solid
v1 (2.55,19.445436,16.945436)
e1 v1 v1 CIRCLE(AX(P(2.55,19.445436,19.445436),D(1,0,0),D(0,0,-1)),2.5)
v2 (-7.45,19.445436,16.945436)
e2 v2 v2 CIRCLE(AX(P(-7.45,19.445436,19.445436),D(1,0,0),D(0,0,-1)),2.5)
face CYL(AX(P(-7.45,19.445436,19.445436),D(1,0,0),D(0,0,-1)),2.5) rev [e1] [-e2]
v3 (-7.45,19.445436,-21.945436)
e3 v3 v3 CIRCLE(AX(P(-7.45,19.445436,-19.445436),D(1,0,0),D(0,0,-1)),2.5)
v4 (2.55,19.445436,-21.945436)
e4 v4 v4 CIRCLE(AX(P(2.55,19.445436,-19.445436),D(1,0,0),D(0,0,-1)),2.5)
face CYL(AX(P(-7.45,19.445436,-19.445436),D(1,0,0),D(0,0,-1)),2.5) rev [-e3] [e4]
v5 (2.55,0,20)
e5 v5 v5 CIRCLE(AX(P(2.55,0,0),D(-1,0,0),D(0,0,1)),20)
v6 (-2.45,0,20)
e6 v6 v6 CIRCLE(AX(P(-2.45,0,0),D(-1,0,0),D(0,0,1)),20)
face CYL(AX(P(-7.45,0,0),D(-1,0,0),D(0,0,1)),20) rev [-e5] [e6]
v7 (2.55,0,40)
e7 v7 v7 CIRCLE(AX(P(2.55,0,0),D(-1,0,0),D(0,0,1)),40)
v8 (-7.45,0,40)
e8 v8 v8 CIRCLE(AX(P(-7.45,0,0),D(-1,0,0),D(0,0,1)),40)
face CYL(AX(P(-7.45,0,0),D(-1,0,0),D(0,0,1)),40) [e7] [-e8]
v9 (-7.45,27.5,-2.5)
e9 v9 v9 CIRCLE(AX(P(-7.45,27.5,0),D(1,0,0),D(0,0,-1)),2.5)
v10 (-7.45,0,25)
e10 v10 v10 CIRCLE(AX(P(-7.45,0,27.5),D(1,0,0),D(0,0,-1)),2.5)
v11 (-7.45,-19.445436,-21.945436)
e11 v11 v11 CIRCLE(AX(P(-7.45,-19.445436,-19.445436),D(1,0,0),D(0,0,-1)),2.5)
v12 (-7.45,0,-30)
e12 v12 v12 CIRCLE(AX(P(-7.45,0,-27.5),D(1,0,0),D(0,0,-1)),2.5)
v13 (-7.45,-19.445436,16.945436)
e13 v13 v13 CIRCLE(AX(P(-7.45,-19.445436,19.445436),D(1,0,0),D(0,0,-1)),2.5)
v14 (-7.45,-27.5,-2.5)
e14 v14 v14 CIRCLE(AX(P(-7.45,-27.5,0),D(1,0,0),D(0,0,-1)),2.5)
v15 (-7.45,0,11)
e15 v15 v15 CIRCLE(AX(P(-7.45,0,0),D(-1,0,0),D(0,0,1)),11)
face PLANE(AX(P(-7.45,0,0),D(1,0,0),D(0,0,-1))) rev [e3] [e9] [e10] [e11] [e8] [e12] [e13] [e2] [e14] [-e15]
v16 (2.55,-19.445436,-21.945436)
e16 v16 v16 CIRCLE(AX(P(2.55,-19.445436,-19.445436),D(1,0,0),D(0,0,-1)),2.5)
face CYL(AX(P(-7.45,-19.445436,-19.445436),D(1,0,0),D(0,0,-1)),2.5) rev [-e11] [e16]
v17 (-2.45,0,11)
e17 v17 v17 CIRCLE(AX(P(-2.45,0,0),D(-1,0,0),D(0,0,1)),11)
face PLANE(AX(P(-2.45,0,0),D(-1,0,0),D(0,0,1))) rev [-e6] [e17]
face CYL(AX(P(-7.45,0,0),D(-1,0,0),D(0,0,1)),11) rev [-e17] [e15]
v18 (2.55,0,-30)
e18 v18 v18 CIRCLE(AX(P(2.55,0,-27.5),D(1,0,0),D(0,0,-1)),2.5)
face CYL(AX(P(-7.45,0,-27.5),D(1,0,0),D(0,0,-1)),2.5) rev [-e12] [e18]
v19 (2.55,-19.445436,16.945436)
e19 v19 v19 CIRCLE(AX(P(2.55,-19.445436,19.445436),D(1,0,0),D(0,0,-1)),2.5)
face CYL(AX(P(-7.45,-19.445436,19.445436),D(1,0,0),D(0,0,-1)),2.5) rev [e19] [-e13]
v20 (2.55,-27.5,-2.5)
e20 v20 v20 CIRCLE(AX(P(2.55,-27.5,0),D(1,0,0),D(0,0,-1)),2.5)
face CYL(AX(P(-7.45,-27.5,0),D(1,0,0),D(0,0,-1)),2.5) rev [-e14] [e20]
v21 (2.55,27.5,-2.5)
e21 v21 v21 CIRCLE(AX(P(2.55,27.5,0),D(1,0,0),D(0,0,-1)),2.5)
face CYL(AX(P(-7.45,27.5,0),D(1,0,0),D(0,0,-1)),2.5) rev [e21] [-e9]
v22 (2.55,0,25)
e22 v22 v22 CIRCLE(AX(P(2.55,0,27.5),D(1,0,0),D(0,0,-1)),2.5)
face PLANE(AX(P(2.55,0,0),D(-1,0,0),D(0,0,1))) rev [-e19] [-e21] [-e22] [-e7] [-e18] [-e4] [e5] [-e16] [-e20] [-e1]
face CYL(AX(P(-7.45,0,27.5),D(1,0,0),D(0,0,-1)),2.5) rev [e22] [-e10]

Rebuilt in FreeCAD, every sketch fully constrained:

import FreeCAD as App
import Part
import Sketcher

V = App.Vector

doc = App.newDocument("Part")
body = doc.addObject("PartDesign::Body", "Body")

# Sketch on XY plane
sketch1 = body.newObject("Sketcher::SketchObject", "Sketch")
sketch1.AttachmentSupport = (doc.getObject("XY_Plane"), [""])
sketch1.MapMode = "FlatFace"
sketch1.addGeometry(Part.LineSegment(V(3, 20, 0), V(3, 40, 0)), False)
sketch1.addGeometry(Part.LineSegment(V(3, 40, 0), V(-7, 40, 0)), False)
sketch1.addGeometry(Part.LineSegment(V(-7, 40, 0), V(-7, 11, 0)), False)
sketch1.addGeometry(Part.LineSegment(V(-7, 11, 0), V(-2, 11, 0)), False)
sketch1.addGeometry(Part.LineSegment(V(-2, 11, 0), V(-2, 20, 0)), False)
sketch1.addGeometry(Part.LineSegment(V(-2, 20, 0), V(3, 20, 0)), False)
sketch1.addConstraint(Sketcher.Constraint("Coincident", 0, 2, 1, 1))
sketch1.addConstraint(Sketcher.Constraint("Coincident", 1, 2, 2, 1))
sketch1.addConstraint(Sketcher.Constraint("Coincident", 2, 2, 3, 1))
sketch1.addConstraint(Sketcher.Constraint("Coincident", 3, 2, 4, 1))
sketch1.addConstraint(Sketcher.Constraint("Coincident", 4, 2, 5, 1))
sketch1.addConstraint(Sketcher.Constraint("Coincident", 5, 2, 0, 1))
sketch1.addConstraint(Sketcher.Constraint("Vertical", 0))
sketch1.addConstraint(Sketcher.Constraint("Horizontal", 1))
sketch1.addConstraint(Sketcher.Constraint("Vertical", 2))
sketch1.addConstraint(Sketcher.Constraint("Horizontal", 3))
sketch1.addConstraint(Sketcher.Constraint("Vertical", 4))
sketch1.addConstraint(Sketcher.Constraint("Horizontal", 5))
sketch1.addConstraint(Sketcher.Constraint("Equal", 3, 5))
sketch1.addConstraint(Sketcher.Constraint("DistanceX", 1, 2, 1, 1, 10.0))
sketch1.addConstraint(Sketcher.Constraint("DistanceY", 0, 1, 0, 2, 20.0))
sketch1.addConstraint(Sketcher.Constraint("DistanceY", 2, 2, 2, 1, 29.0))
sketch1.addConstraint(Sketcher.Constraint("DistanceY", -1, 1, 0, 2, 40.0))
sketch1.addConstraint(Sketcher.Constraint("DistanceX", -1, 1, 0, 2, 2.55))
revolution = body.newObject("PartDesign::Revolution", "Revolution")
revolution.Profile = sketch1
revolution.ReferenceAxis = (sketch1, ["H_Axis"])
revolution.Angle = 360

# Sketch on YZ plane
sketch2 = body.newObject("Sketcher::SketchObject", "Sketch001")
sketch2.AttachmentSupport = (doc.getObject("YZ_Plane"), [""])
sketch2.MapMode = "FlatFace"
sketch2.AttachmentOffset = App.Placement(V(0, 0, 2.55), App.Rotation())
sketch2.addGeometry(Part.Circle(V(-19.4, 19.4, 0), V(0, 0, 1), 2.5), False)
sketch2.addGeometry(Part.Circle(V(0, 27.5, 0), V(0, 0, 1), 2.5), False)
sketch2.addGeometry(Part.Circle(V(19.4, 19.4, 0), V(0, 0, 1), 2.5), False)
sketch2.addGeometry(Part.Circle(V(27.5, 0, 0), V(0, 0, 1), 2.5), False)
sketch2.addGeometry(Part.Circle(V(19.4, -19.4, 0), V(0, 0, 1), 2.5), False)
sketch2.addGeometry(Part.Circle(V(0, -27.5, 0), V(0, 0, 1), 2.5), False)
sketch2.addGeometry(Part.Circle(V(-19.4, -19.4, 0), V(0, 0, 1), 2.5), False)
sketch2.addGeometry(Part.Circle(V(-27.5, 0, 0), V(0, 0, 1), 2.5), False)
sketch2.addConstraint(Sketcher.Constraint("Equal", 0, 1))
sketch2.addConstraint(Sketcher.Constraint("Equal", 1, 2))
sketch2.addConstraint(Sketcher.Constraint("Equal", 2, 3))
sketch2.addConstraint(Sketcher.Constraint("Equal", 3, 4))
sketch2.addConstraint(Sketcher.Constraint("Equal", 4, 5))
sketch2.addConstraint(Sketcher.Constraint("Equal", 5, 6))
sketch2.addConstraint(Sketcher.Constraint("Equal", 6, 7))
sketch2.addConstraint(Sketcher.Constraint("Symmetric", 0, 3, 4, 3, -1, 1))
sketch2.addConstraint(Sketcher.Constraint("Symmetric", 1, 3, 5, 3, -1, 1))
sketch2.addConstraint(Sketcher.Constraint("Symmetric", 2, 3, 6, 3, -1, 1))
sketch2.addConstraint(Sketcher.Constraint("Symmetric", 3, 3, 7, 3, -1, 1))
sketch2.addConstraint(Sketcher.Constraint("Symmetric", 0, 3, 2, 3, -2))
sketch2.addConstraint(Sketcher.Constraint("PointOnObject", 1, 3, -2))
sketch2.addConstraint(Sketcher.Constraint("PointOnObject", 3, 3, -1))
sketch2.addConstraint(Sketcher.Constraint("Diameter", 0, 5.0))
sketch2.addConstraint(Sketcher.Constraint("DistanceY", 5, 3, 1, 3, 55.0))
sketch2.addConstraint(Sketcher.Constraint("DistanceX", -1, 1, 3, 3, 27.5))
sketch2.addConstraint(Sketcher.Constraint("DistanceX", 0, 3, -1, 1, 19.445436))
sketch2.addConstraint(Sketcher.Constraint("DistanceY", -1, 1, 0, 3, 19.445436))
pocket1 = body.newObject("PartDesign::Pocket", "Pocket")
pocket1.Profile = sketch2
pocket1.Type = "ThroughAll"

doc.recompute()
